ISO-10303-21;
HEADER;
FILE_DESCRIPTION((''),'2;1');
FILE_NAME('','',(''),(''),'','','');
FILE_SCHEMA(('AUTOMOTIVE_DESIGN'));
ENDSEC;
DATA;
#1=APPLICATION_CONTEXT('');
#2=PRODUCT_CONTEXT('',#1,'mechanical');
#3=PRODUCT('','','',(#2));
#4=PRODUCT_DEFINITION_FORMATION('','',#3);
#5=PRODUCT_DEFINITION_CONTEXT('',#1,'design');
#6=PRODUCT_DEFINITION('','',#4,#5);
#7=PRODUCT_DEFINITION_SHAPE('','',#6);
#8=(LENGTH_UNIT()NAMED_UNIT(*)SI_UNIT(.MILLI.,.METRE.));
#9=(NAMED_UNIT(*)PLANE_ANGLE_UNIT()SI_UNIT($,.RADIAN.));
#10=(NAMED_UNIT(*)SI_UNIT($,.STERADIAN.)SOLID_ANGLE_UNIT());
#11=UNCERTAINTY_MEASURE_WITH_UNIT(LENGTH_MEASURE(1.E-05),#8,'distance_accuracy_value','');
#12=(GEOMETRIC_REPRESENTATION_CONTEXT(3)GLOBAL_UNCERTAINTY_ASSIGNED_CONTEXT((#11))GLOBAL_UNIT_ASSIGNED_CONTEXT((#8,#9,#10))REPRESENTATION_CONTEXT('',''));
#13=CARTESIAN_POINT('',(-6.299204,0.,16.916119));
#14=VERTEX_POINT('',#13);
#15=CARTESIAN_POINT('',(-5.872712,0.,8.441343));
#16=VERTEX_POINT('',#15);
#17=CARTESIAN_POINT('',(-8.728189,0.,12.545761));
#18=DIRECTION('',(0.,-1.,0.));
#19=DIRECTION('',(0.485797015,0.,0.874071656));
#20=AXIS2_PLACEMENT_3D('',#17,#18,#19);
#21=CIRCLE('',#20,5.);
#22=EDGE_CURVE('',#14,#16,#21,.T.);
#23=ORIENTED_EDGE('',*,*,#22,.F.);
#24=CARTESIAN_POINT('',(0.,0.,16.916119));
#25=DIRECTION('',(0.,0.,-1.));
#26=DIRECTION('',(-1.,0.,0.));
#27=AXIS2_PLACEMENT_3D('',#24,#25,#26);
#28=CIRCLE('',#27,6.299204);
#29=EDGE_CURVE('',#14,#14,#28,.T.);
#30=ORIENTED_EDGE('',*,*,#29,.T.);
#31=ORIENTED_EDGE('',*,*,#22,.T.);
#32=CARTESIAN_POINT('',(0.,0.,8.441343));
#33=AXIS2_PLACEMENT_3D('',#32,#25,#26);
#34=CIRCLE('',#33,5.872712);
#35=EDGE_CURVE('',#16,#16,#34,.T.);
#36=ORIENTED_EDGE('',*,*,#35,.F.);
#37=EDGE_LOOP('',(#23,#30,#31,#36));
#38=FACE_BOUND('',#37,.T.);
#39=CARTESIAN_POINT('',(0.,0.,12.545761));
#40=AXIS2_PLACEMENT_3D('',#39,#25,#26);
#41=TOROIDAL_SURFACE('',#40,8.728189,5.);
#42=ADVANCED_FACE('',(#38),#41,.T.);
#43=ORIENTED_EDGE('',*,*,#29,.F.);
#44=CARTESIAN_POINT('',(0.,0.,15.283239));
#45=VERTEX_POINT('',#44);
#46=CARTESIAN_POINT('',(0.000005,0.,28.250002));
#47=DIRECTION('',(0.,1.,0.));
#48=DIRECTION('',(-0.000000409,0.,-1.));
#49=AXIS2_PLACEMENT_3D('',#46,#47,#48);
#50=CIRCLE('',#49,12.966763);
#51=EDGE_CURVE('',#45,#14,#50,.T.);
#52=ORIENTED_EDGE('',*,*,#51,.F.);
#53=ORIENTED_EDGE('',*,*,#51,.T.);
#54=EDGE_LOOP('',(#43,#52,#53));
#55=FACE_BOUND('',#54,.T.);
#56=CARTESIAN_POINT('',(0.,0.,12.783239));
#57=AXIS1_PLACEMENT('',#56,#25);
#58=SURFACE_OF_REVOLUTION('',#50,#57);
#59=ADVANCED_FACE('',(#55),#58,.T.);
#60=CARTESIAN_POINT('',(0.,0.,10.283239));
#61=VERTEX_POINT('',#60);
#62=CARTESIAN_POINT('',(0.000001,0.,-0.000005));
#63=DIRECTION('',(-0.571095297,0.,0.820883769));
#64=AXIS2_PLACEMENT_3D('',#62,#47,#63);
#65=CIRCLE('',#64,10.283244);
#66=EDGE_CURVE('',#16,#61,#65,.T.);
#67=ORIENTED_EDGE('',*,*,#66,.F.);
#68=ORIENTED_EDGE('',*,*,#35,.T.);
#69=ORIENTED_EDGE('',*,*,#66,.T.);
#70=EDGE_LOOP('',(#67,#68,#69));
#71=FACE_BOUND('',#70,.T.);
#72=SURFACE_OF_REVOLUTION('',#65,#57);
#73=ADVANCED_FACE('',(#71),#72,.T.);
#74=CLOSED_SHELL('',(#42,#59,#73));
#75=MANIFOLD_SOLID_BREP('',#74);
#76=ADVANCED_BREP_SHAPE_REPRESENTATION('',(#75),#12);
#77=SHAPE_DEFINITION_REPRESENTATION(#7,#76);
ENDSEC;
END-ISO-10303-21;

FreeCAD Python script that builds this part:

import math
import FreeCAD as App
import Part
import Sketcher

V = App.Vector
Q = App.Units.Quantity

doc = App.newDocument("Part")
params = doc.addObject("Spreadsheet::Sheet", "Params")
for row, (alias, value) in enumerate([
    ("sketch1_radius", "5 mm"),
    ("sketch1_height", "5 mm"),
    ("revolution_angle", "360 deg"),
], start=1):
    params.set(f"A{row}", alias)
    params.set(f"B{row}", "=" + value)
    params.setAlias(f"B{row}", alias)

body = doc.addObject("PartDesign::Body", "Body")

# Sketch on XZ plane
sketch1 = body.newObject("Sketcher::SketchObject", "Sketch")
sketch1.AttachmentSupport = (doc.getObject("XZ_Plane"), [""])
sketch1.MapMode = "FlatFace"
sketch1.addGeometry([
    Part.ArcOfCircle(Part.Circle(V(0, 0, 0), V(0, 0, 1), 10.3), math.radians(90), math.radians(125)),
    Part.LineSegment(V(0, 10.3, 0), V(0, 15.3, 0)),
    Part.ArcOfCircle(Part.Circle(V(0, 28.3, 0), V(0, 0, 1), 13), math.radians(-119), math.radians(-90)),
    Part.ArcOfCircle(Part.Circle(V(-8.7, 12.5, 0), V(0, 0, 1), 5), math.radians(61), math.radians(305)),
], False)
sketch1.addConstraint([
    Sketcher.Constraint("Coincident", 0, 1, 1, 1),
    Sketcher.Constraint("Coincident", 1, 2, 2, 2),
    Sketcher.Constraint("Tangent", 2, 1, 3, 1),
    Sketcher.Constraint("Tangent", 3, 2, 0, 2),
    Sketcher.Constraint("Vertical", 1),
    Sketcher.Constraint("Coincident", 0, 3, -1, 1),
    Sketcher.Constraint("PointOnObject", 0, 1, -2),
    Sketcher.Constraint("Radius", 3, Q("5 mm")),
    Sketcher.Constraint("DistanceY", 1, 1, 1, 2, Q("5 mm")),
    Sketcher.Constraint("DistanceY", -1, 1, 2, 3, Q("28.250002 mm")),
    Sketcher.Constraint("Radius", 0, Q("10.283245 mm")),
    Sketcher.Constraint("DistanceX", 3, 3, -1, 1, Q("8.728189 mm")),
])
sketch1.setExpression("Constraints[7]", "Params.sketch1_radius")
sketch1.setExpression("Constraints[8]", "Params.sketch1_height")
revolution = body.newObject("PartDesign::Revolution", "Revolution")
revolution.Profile = sketch1
revolution.ReferenceAxis = (sketch1, ["V_Axis"])
revolution.setExpression("Angle", "Params.revolution_angle")

doc.recompute()
